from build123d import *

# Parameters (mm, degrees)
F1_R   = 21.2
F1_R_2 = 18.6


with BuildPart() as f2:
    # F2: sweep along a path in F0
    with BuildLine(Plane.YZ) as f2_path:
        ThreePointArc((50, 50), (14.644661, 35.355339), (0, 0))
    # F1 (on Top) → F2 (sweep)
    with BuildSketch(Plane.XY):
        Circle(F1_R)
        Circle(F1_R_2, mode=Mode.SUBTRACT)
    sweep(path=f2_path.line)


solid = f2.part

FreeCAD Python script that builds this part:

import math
import FreeCAD as App
import Part
import Sketcher
from FreeCAD import Vector
Q = App.Units.Quantity

doc = App.newDocument("Part")
body = doc.addObject("PartDesign::Body", "Body")

# Sketch on XY plane
sketch1 = body.newObject("Sketcher::SketchObject", "Sketch")
sketch1.AttachmentSupport = (doc.getObject("XY_Plane"), [""])
sketch1.MapMode = "FlatFace"
sketch1.addGeometry([
    Part.Circle(Vector(0, 0, 0), Vector(0, 0, 1), 21),
    Part.Circle(Vector(0, 0, 0), Vector(0, 0, 1), 19),
], False)
sketch1.addConstraint([
    Sketcher.Constraint("Coincident", 0, 3, -1, 1),
    Sketcher.Constraint("Coincident", 1, 3, -1, 1),
    Sketcher.Constraint("Diameter", 0, Q("42.4 mm")),
    Sketcher.Constraint("Diameter", 1, Q("37.2 mm")),
])

# Sketch on YZ plane
sketch2 = body.newObject("Sketcher::SketchObject", "Sketch001")
sketch2.AttachmentSupport = (doc.getObject("YZ_Plane"), [""])
sketch2.MapMode = "FlatFace"
sketch2.addGeometry(Part.ArcOfCircle(Part.Circle(Vector(50, 0, 0), Vector(0, 0, 1), 50), math.radians(90), math.radians(180)), False)
sketch2.addConstraint([
    Sketcher.Constraint("Coincident", 0, 2, -1, 1),
    Sketcher.Constraint("PointOnObject", 0, 3, -1),
    Sketcher.Constraint("Radius", 0, Q("50 mm")),
    Sketcher.Constraint("DistanceX", -1, 1, 0, 1, Q("50 mm")),
])
doc.recompute()

additivepipe = body.newObject("PartDesign::AdditivePipe", "AdditivePipe")
additivepipe.Profile = sketch1
additivepipe.Spine = (sketch2, ["Edge1"])

doc.recompute()
